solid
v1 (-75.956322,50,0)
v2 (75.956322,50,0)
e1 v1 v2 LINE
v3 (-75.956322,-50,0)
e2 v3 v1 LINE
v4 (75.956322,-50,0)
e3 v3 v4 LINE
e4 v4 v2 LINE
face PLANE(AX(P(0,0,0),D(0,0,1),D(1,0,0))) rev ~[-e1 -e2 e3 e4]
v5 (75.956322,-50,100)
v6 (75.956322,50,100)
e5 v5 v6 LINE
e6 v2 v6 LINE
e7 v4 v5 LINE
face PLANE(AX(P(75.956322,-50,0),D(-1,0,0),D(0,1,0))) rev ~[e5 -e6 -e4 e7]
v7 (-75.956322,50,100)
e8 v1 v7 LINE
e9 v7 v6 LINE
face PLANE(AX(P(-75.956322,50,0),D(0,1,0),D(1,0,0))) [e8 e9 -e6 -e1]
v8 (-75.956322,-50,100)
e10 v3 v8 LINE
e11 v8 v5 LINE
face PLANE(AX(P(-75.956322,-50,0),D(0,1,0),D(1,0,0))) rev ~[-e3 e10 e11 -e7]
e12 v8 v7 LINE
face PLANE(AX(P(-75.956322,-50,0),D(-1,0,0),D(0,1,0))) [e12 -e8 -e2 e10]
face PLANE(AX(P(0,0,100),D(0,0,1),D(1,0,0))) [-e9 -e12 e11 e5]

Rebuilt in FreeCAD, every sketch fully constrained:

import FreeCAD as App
import Part
import Sketcher

doc = App.newDocument("Part")
body = doc.addObject("PartDesign::Body", "Body")

# Sketch on XY plane
sketch1 = body.newObject("Sketcher::SketchObject", "Sketch")
sketch1.AttachmentSupport = (doc.getObject("XY_Plane"), [""])
sketch1.MapMode = "FlatFace"
sketch1.addGeometry(Part.LineSegment(App.Vector(-76, 50, 0), App.Vector(-76, -50, 0)), False)
sketch1.addGeometry(Part.LineSegment(App.Vector(-76, -50, 0), App.Vector(76, -50, 0)), False)
sketch1.addGeometry(Part.LineSegment(App.Vector(76, -50, 0), App.Vector(76, 50, 0)), False)
sketch1.addGeometry(Part.LineSegment(App.Vector(76, 50, 0), App.Vector(-76, 50, 0)), False)
sketch1.addConstraint(Sketcher.Constraint("Coincident", 0, 2, 1, 1))
sketch1.addConstraint(Sketcher.Constraint("Coincident", 1, 2, 2, 1))
sketch1.addConstraint(Sketcher.Constraint("Coincident", 2, 2, 3, 1))
sketch1.addConstraint(Sketcher.Constraint("Coincident", 3, 2, 0, 1))
sketch1.addConstraint(Sketcher.Constraint("Vertical", 0))
sketch1.addConstraint(Sketcher.Constraint("Horizontal", 1))
sketch1.addConstraint(Sketcher.Constraint("Vertical", 2))
sketch1.addConstraint(Sketcher.Constraint("Horizontal", 3))
sketch1.addConstraint(Sketcher.Constraint("Symmetric", 0, 2, 2, 2, -1, 1))
sketch1.addConstraint(Sketcher.Constraint("DistanceY", 0, 2, 0, 1, 100.0))
sketch1.addConstraint(Sketcher.Constraint("DistanceX", 1, 1, 1, 2, 151.912644))
pad1 = body.newObject("PartDesign::Pad", "Pad")
pad1.Profile = sketch1
pad1.Length = 100

doc.recompute()
